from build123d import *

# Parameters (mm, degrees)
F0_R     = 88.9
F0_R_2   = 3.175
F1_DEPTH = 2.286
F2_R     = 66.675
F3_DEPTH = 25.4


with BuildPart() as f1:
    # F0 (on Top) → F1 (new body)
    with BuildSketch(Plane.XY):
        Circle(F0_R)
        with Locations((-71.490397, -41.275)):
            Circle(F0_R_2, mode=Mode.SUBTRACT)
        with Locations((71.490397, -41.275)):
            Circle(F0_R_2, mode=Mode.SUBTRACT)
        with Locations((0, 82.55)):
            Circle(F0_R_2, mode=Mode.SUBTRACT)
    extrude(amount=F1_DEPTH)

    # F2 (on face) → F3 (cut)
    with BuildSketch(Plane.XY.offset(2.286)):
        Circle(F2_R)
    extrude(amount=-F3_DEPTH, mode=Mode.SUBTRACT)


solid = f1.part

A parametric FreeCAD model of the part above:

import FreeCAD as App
import Part
import Sketcher
Q = App.Units.Quantity

doc = App.newDocument("Part")
params = doc.addObject("Spreadsheet::Sheet", "Params")
for row, (alias, value) in enumerate([
    ("sketch1_diameter", "7 in"),
    ("sketch1_diameter2", "0.25 in"),
    ("pad1_length", "0.09 in"),
    ("sketch2_diameter", "5.25 in"),
    ("pocket1_length", "1 in"),
], start=1):
    params.set(f"A{row}", alias)
    params.set(f"B{row}", "=" + value)
    params.setAlias(f"B{row}", alias)

body = doc.addObject("PartDesign::Body", "Body")

# Sketch on XY plane
sketch1 = doc.addObject("Sketcher::SketchObject", "Sketch")
body.addObject(sketch1)
sketch1.AttachmentSupport = (doc.XY_Plane, [""])
sketch1.MapMode = "FlatFace"
sketch1.addGeometry(Part.Circle(App.Vector(0, 0, 0), App.Vector(0, 0, 1), 88.9), False)
sketch1.addGeometry(Part.Circle(App.Vector(-71.490397, -41.275, 0), App.Vector(0, 0, 1), 3.175), False)
sketch1.addGeometry(Part.Circle(App.Vector(71.490397, -41.275, 0), App.Vector(0, 0, 1), 3.175), False)
sketch1.addGeometry(Part.Circle(App.Vector(0, 82.55, 0), App.Vector(0, 0, 1), 3.175), False)
sketch1.addConstraint(Sketcher.Constraint("Coincident", 0, 3, -1, 1))
sketch1.addConstraint(Sketcher.Constraint("Equal", 1, 2))
sketch1.addConstraint(Sketcher.Constraint("Equal", 2, 3))
sketch1.addConstraint(Sketcher.Constraint("Symmetric", 1, 3, 2, 3, -2))
sketch1.addConstraint(Sketcher.Constraint("PointOnObject", 3, 3, -2))
sketch1.addConstraint(Sketcher.Constraint("Diameter", 0, Q("7 in")))
sketch1.addConstraint(Sketcher.Constraint("Diameter", 1, Q("0.25 in")))
sketch1.addConstraint(Sketcher.Constraint("DistanceY", -1, 1, 3, 3, Q("3.25 in")))
sketch1.addConstraint(Sketcher.Constraint("DistanceY", 1, 3, -1, 1, Q("1.625 in")))
sketch1.addConstraint(Sketcher.Constraint("DistanceX", 1, 3, -1, 1, Q("71.490397 mm")))
sketch1.setExpression("Constraints[5]", "Params.sketch1_diameter")
sketch1.setExpression("Constraints[6]", "Params.sketch1_diameter2")
pad1 = doc.addObject("PartDesign::Pad", "Pad")
body.addObject(pad1)
pad1.Profile = sketch1
pad1.setExpression("Length", "Params.pad1_length")

# Sketch on XY plane
sketch2 = doc.addObject("Sketcher::SketchObject", "Sketch001")
body.addObject(sketch2)
sketch2.AttachmentSupport = (doc.XY_Plane, [""])
sketch2.MapMode = "FlatFace"
sketch2.AttachmentOffset = App.Placement(App.Vector(0, 0, 0.09 * 25.4), App.Rotation())
sketch2.addGeometry(Part.Circle(App.Vector(0, 0, 0), App.Vector(0, 0, 1), 66.675), False)
sketch2.addConstraint(Sketcher.Constraint("Coincident", 0, 3, -1, 1))
sketch2.addConstraint(Sketcher.Constraint("Diameter", 0, Q("5.25 in")))
sketch2.setExpression("Constraints[1]", "Params.sketch2_diameter")
pocket1 = doc.addObject("PartDesign::Pocket", "Pocket")
body.addObject(pocket1)
pocket1.Profile = sketch2
pocket1.setExpression("Length", "Params.pocket1_length")

doc.recompute()
